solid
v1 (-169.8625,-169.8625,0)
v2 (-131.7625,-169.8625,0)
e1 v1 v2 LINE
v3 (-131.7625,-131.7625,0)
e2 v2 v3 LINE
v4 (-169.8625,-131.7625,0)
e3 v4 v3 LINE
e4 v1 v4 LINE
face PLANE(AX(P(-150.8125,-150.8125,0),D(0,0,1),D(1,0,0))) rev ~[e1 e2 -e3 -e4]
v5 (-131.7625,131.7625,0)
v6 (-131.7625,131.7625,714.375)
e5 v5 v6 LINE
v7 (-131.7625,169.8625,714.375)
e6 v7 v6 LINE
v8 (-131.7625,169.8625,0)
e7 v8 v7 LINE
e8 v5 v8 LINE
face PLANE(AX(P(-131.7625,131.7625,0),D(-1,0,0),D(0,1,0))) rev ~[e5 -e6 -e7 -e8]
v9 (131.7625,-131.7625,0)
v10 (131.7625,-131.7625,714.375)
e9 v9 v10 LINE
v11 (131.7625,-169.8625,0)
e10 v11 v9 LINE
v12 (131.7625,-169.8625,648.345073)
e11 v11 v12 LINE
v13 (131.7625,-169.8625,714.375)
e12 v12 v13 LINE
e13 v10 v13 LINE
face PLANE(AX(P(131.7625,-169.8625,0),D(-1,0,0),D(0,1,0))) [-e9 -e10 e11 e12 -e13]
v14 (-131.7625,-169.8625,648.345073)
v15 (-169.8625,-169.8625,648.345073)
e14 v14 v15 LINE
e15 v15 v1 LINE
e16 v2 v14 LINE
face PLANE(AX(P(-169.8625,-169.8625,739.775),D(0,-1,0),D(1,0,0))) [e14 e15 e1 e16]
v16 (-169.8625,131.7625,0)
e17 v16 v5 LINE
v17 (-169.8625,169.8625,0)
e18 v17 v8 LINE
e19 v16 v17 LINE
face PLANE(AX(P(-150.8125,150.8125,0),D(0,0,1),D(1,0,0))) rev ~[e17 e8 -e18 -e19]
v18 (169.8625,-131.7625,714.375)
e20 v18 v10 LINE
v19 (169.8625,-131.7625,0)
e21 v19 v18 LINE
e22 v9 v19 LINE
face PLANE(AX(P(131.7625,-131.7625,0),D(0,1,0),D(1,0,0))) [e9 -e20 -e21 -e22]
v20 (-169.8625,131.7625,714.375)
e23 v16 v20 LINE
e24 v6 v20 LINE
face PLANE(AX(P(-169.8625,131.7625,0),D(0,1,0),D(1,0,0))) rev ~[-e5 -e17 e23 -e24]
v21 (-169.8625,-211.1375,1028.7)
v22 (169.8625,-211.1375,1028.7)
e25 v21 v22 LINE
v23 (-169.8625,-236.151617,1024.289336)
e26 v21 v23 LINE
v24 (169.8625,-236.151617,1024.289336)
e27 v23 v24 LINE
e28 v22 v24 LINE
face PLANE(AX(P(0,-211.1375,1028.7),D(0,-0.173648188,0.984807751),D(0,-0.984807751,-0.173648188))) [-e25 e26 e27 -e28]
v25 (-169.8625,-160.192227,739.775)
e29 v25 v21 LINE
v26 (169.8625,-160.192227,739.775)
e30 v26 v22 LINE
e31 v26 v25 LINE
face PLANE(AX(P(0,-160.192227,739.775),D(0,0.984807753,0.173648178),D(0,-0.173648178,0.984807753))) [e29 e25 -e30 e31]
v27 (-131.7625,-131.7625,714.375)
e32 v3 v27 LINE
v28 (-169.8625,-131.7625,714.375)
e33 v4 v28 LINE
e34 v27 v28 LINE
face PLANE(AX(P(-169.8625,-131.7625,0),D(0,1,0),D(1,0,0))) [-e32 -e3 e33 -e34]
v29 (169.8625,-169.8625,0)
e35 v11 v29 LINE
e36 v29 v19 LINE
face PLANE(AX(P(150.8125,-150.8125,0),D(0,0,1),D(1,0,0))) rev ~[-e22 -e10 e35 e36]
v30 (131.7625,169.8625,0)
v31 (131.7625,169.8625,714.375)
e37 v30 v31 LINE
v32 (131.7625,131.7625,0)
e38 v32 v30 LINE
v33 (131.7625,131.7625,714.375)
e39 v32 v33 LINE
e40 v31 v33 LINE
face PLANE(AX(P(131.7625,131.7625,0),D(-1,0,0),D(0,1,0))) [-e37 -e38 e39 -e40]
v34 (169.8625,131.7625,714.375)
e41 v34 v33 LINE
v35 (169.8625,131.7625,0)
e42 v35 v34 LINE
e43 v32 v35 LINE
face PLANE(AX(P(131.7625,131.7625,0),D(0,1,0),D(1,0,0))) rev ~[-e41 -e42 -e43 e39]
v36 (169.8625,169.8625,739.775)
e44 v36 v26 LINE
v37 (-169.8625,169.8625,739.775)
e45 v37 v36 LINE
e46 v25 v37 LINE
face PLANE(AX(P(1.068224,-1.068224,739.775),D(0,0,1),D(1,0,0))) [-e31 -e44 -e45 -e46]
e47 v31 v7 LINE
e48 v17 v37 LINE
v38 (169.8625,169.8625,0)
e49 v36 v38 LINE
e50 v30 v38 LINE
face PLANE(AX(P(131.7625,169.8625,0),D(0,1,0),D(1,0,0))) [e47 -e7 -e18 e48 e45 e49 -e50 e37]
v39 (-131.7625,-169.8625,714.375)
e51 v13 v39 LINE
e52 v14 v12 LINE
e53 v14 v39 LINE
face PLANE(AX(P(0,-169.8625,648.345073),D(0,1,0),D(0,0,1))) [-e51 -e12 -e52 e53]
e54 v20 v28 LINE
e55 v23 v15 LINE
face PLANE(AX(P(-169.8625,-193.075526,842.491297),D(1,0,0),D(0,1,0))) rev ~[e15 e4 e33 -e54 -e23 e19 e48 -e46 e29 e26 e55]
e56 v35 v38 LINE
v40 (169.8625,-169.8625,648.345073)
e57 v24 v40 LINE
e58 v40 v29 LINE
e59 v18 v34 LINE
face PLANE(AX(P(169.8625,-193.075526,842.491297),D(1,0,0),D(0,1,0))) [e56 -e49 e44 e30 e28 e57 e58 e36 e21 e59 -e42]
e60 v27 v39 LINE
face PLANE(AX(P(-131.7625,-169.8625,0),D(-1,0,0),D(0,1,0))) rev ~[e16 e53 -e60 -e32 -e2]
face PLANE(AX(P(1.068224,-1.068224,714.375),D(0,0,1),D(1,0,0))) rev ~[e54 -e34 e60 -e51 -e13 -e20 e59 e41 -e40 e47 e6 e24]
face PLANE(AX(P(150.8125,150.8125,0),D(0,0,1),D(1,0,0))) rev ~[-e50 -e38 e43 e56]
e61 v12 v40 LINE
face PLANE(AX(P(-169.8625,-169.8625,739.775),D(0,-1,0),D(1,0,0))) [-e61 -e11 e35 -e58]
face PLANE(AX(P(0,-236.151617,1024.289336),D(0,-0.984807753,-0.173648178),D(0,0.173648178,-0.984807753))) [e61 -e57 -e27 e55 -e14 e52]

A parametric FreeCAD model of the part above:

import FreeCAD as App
import Part
import Sketcher

V = App.Vector
Q = App.Units.Quantity

doc = App.newDocument("Part")
body = doc.addObject("PartDesign::Body", "Body")
body.AllowCompound = True

# Sketch on XY plane
sketch1 = doc.addObject("Sketcher::SketchObject", "Sketch")
body.addObject(sketch1)
sketch1.AttachmentSupport = (doc.XY_Plane, [""])
sketch1.MapMode = "FlatFace"
sketch1.addGeometry(Part.LineSegment(V(-170, 170, 0), V(-170, 132, 0)), False)
sketch1.addGeometry(Part.LineSegment(V(-170, 132, 0), V(-132, 132, 0)), False)
sketch1.addGeometry(Part.LineSegment(V(-132, 132, 0), V(-132, 170, 0)), False)
sketch1.addGeometry(Part.LineSegment(V(-132, 170, 0), V(-170, 170, 0)), False)
sketch1.addGeometry(Part.LineSegment(V(-170, -132, 0), V(-170, -170, 0)), False)
sketch1.addGeometry(Part.LineSegment(V(-170, -170, 0), V(-132, -170, 0)), False)
sketch1.addGeometry(Part.LineSegment(V(-132, -170, 0), V(-132, -132, 0)), False)
sketch1.addGeometry(Part.LineSegment(V(-132, -132, 0), V(-170, -132, 0)), False)
sketch1.addGeometry(Part.LineSegment(V(132, -132, 0), V(132, -170, 0)), False)
sketch1.addGeometry(Part.LineSegment(V(132, -170, 0), V(170, -170, 0)), False)
sketch1.addGeometry(Part.LineSegment(V(170, -170, 0), V(170, -132, 0)), False)
sketch1.addGeometry(Part.LineSegment(V(170, -132, 0), V(132, -132, 0)), False)
sketch1.addGeometry(Part.LineSegment(V(132, 170, 0), V(132, 132, 0)), False)
sketch1.addGeometry(Part.LineSegment(V(132, 132, 0), V(170, 132, 0)), False)
sketch1.addGeometry(Part.LineSegment(V(170, 132, 0), V(170, 170, 0)), False)
sketch1.addGeometry(Part.LineSegment(V(170, 170, 0), V(132, 170, 0)), False)
sketch1.addConstraint(Sketcher.Constraint("Coincident", 0, 2, 1, 1))
sketch1.addConstraint(Sketcher.Constraint("Coincident", 1, 2, 2, 1))
sketch1.addConstraint(Sketcher.Constraint("Coincident", 2, 2, 3, 1))
sketch1.addConstraint(Sketcher.Constraint("Coincident", 3, 2, 0, 1))
sketch1.addConstraint(Sketcher.Constraint("Coincident", 4, 2, 5, 1))
sketch1.addConstraint(Sketcher.Constraint("Coincident", 5, 2, 6, 1))
sketch1.addConstraint(Sketcher.Constraint("Coincident", 6, 2, 7, 1))
sketch1.addConstraint(Sketcher.Constraint("Coincident", 7, 2, 4, 1))
sketch1.addConstraint(Sketcher.Constraint("Coincident", 8, 2, 9, 1))
sketch1.addConstraint(Sketcher.Constraint("Coincident", 9, 2, 10, 1))
sketch1.addConstraint(Sketcher.Constraint("Coincident", 10, 2, 11, 1))
sketch1.addConstraint(Sketcher.Constraint("Coincident", 11, 2, 8, 1))
sketch1.addConstraint(Sketcher.Constraint("Coincident", 12, 2, 13, 1))
sketch1.addConstraint(Sketcher.Constraint("Coincident", 13, 2, 14, 1))
sketch1.addConstraint(Sketcher.Constraint("Coincident", 14, 2, 15, 1))
sketch1.addConstraint(Sketcher.Constraint("Coincident", 15, 2, 12, 1))
sketch1.addConstraint(Sketcher.Constraint("Vertical", 0))
sketch1.addConstraint(Sketcher.Constraint("Horizontal", 1))
sketch1.addConstraint(Sketcher.Constraint("Vertical", 2))
sketch1.addConstraint(Sketcher.Constraint("Horizontal", 3))
sketch1.addConstraint(Sketcher.Constraint("Vertical", 4))
sketch1.addConstraint(Sketcher.Constraint("Horizontal", 5))
sketch1.addConstraint(Sketcher.Constraint("Vertical", 6))
sketch1.addConstraint(Sketcher.Constraint("Horizontal", 7))
sketch1.addConstraint(Sketcher.Constraint("Vertical", 8))
sketch1.addConstraint(Sketcher.Constraint("Horizontal", 9))
sketch1.addConstraint(Sketcher.Constraint("Vertical", 10))
sketch1.addConstraint(Sketcher.Constraint("Horizontal", 11))
sketch1.addConstraint(Sketcher.Constraint("Vertical", 12))
sketch1.addConstraint(Sketcher.Constraint("Horizontal", 13))
sketch1.addConstraint(Sketcher.Constraint("Vertical", 14))
sketch1.addConstraint(Sketcher.Constraint("Horizontal", 15))
sketch1.addConstraint(Sketcher.Constraint("Symmetric", 2, 2, 8, 2, -1, 1))
sketch1.addConstraint(Sketcher.Constraint("Symmetric", 0, 2, 10, 2, -1, 1))
sketch1.addConstraint(Sketcher.Constraint("Symmetric", 6, 2, 12, 2, -1, 1))
sketch1.addConstraint(Sketcher.Constraint("Symmetric", 4, 2, 14, 2, -1, 1))
sketch1.addConstraint(Sketcher.Constraint("Symmetric", 5, 2, 8, 2, -2))
sketch1.addConstraint(Sketcher.Constraint("Symmetric", 7, 2, 10, 2, -2))
sketch1.addConstraint(Sketcher.Constraint("Equal", 15, 0))
sketch1.addConstraint(Sketcher.Constraint("DistanceX", 1, 1, 1, 2, Q("1.5 in")))
sketch1.addConstraint(Sketcher.Constraint("DistanceX", 0, 2, -1, 1, Q("6.6875 in")))
sketch1.addConstraint(Sketcher.Constraint("DistanceY", -1, 1, 0, 2, Q("5.1875 in")))
pad1 = doc.addObject("PartDesign::Pad", "Pad")
body.addObject(pad1)
pad1.Profile = sketch1
pad1.Length = Q("29.125 in")
body2 = doc.addObject("PartDesign::Body", "Body001")

# Sketch on XY plane
sketch2 = doc.addObject("Sketcher::SketchObject", "Sketch001")
body2.addObject(sketch2)
sketch2.AttachmentSupport = (doc.getObject("XY_Plane001"), [""])
sketch2.MapMode = "FlatFace"
sketch2.AttachmentOffset = App.Placement(V(0, 0, 29.125 * 25.4), App.Rotation())
sketch2.addGeometry(Part.LineSegment(V(170, 170, 0), V(-132, 170, 0)), False)
sketch2.addGeometry(Part.LineSegment(V(-132, 170, 0), V(-132, 132, 0)), False)
sketch2.addGeometry(Part.LineSegment(V(-132, 132, 0), V(-170, 132, 0)), False)
sketch2.addGeometry(Part.LineSegment(V(-170, 132, 0), V(-170, -170, 0)), False)
sketch2.addGeometry(Part.LineSegment(V(-170, -170, 0), V(170, -170, 0)), False)
sketch2.addGeometry(Part.LineSegment(V(170, -170, 0), V(170, 170, 0)), False)
sketch2.addConstraint(Sketcher.Constraint("Coincident", 0, 2, 1, 1))
sketch2.addConstraint(Sketcher.Constraint("Coincident", 1, 2, 2, 1))
sketch2.addConstraint(Sketcher.Constraint("Coincident", 2, 2, 3, 1))
sketch2.addConstraint(Sketcher.Constraint("Coincident", 3, 2, 4, 1))
sketch2.addConstraint(Sketcher.Constraint("Coincident", 4, 2, 5, 1))
sketch2.addConstraint(Sketcher.Constraint("Coincident", 5, 2, 0, 1))
sketch2.addConstraint(Sketcher.Constraint("Horizontal", 0))
sketch2.addConstraint(Sketcher.Constraint("Vertical", 1))
sketch2.addConstraint(Sketcher.Constraint("Horizontal", 2))
sketch2.addConstraint(Sketcher.Constraint("Vertical", 3))
sketch2.addConstraint(Sketcher.Constraint("Horizontal", 4))
sketch2.addConstraint(Sketcher.Constraint("Vertical", 5))
sketch2.addConstraint(Sketcher.Constraint("Symmetric", 3, 2, 5, 2, -1, 1))
sketch2.addConstraint(Sketcher.Constraint("Equal", 2, 1))
sketch2.addConstraint(Sketcher.Constraint("Equal", 0, 3))
sketch2.addConstraint(Sketcher.Constraint("DistanceX", 2, 2, 2, 1, Q("1.5 in")))
sketch2.addConstraint(Sketcher.Constraint("DistanceX", 0, 2, 0, 1, Q("11.875 in")))
pad2 = doc.addObject("PartDesign::Pad", "Pad001")
body2.addObject(pad2)
pad2.Profile = sketch2
pad2.Length = Q("1 in")
pad2.Reversed = True
doc.recompute()

boolean = doc.addObject("PartDesign::Boolean", "Boolean")
body2.addObject(boolean)
boolean.Type = "Fuse"
boolean.addObjects([body])

# Sketch on YZ plane
sketch3 = doc.addObject("Sketcher::SketchObject", "Sketch002")
body2.addObject(sketch3)
sketch3.AttachmentSupport = (doc.getObject("YZ_Plane001"), [""])
sketch3.MapMode = "FlatFace"
sketch3.addGeometry(Part.LineSegment(V(-170, 740, 0), V(-160, 740, 0)), False)
sketch3.addGeometry(Part.LineSegment(V(-160, 740, 0), V(-211, 1029, 0)), False)
sketch3.addGeometry(Part.LineSegment(V(-211, 1029, 0), V(-236, 1024, 0)), False)
sketch3.addGeometry(Part.LineSegment(V(-236, 1024, 0), V(-170, 648, 0)), False)
sketch3.addGeometry(Part.LineSegment(V(-170, 648, 0), V(-170, 740, 0)), False)
sketch3.addConstraint(Sketcher.Constraint("Coincident", 0, 2, 1, 1))
sketch3.addConstraint(Sketcher.Constraint("Coincident", 1, 2, 2, 1))
sketch3.addConstraint(Sketcher.Constraint("Coincident", 2, 2, 3, 1))
sketch3.addConstraint(Sketcher.Constraint("Coincident", 3, 2, 4, 1))
sketch3.addConstraint(Sketcher.Constraint("Coincident", 4, 2, 0, 1))
sketch3.addConstraint(Sketcher.Constraint("Horizontal", 0))
sketch3.addConstraint(Sketcher.Constraint("Vertical", 4))
sketch3.addConstraint(Sketcher.Constraint("Perpendicular", 1, 2))
sketch3.addConstraint(Sketcher.Constraint("Perpendicular", 2, 3))
sketch3.addConstraint(Sketcher.Constraint("Distance", 2, Q("1 in")))
sketch3.addConstraint(Sketcher.Constraint("Angle", 1, Q("100 deg")))
sketch3.addConstraint(Sketcher.Constraint("DistanceY", -1, 1, 1, 2, Q("40.5 in")))
sketch3.addConstraint(Sketcher.Constraint("DistanceY", -1, 1, 0, 2, Q("29.125 in")))
sketch3.addConstraint(Sketcher.Constraint("DistanceX", 1, 2, -1, 1, Q("8.3125 in")))
sketch3.addConstraint(Sketcher.Constraint("DistanceX", 3, 2, -1, 1, Q("6.6875 in")))
pad3 = doc.addObject("PartDesign::Pad", "Pad002")
body2.addObject(pad3)
pad3.Profile = sketch3
pad3.Type = "TwoLengths"
pad3.Length = Q("6.6875 in")
pad3.Length2 = Q("6.6875 in")

doc.recompute()
